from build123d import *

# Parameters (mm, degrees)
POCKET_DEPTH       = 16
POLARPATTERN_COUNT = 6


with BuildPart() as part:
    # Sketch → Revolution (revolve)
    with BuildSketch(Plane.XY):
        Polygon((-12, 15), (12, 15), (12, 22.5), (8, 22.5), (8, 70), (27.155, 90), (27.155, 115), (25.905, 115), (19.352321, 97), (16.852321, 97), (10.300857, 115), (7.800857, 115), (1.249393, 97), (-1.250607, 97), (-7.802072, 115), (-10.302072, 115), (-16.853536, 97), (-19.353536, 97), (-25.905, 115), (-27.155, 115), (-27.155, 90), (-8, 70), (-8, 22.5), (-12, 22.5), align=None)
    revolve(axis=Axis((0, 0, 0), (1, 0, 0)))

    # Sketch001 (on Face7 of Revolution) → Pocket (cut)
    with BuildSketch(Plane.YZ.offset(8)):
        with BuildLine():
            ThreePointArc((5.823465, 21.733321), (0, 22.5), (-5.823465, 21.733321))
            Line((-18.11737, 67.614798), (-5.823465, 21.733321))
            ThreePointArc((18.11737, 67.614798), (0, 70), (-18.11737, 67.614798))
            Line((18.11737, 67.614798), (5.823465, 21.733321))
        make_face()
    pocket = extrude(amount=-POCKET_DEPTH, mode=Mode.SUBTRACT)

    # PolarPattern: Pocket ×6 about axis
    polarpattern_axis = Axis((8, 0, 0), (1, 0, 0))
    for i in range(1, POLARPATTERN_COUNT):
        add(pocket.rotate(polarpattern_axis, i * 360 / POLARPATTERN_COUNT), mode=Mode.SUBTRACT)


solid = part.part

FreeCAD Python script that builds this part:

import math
import FreeCAD as App
import Part
import Sketcher
Q = App.Units.Quantity


def add_polygon(sketch, points):
    """Adds a closed chain of lines whose ends are joined by coincident constraints."""
    first, n = sketch.GeometryCount, len(points)
    for a, b in zip(points, points[1:] + points[:1]):
        sketch.addGeometry(Part.LineSegment(App.Vector(*a, 0), App.Vector(*b, 0)), False)
    for i in range(n):
        sketch.addConstraint(Sketcher.Constraint("Coincident", first + i, 2, first + (i + 1) % n, 1))

doc = App.newDocument("Part")
params = doc.addObject("Spreadsheet::Sheet", "Params")
for row, (alias, value) in enumerate([
    ("sketch1_width", "24 mm"),
    ("sketch1_width2", "4 mm"),
    ("sketch1_height", "25 mm"),
    ("sketch1_width3", "2.5 mm"),
    ("sketch1_height2", "7.5 mm"),
    ("revolution_angle", "360 deg"),
    ("sketch2_radius", "70.000001 mm"),
    ("sketch2_length", "47.5 mm"),
    ("pocket1_length", "16 mm"),
], start=1):
    params.set(f"A{row}", alias)
    params.set(f"B{row}", "=" + value)
    params.setAlias(f"B{row}", alias)

body = doc.addObject("PartDesign::Body", "Body")

# Sketch on XY plane
sketch1 = body.newObject("Sketcher::SketchObject", "Sketch")
sketch1.AttachmentSupport = (doc.getObject("XY_Plane"), [""])
sketch1.MapMode = "FlatFace"
add_polygon(sketch1, [(-12, 15), (12, 15), (12, 22.5), (8, 22.5), (8, 70), (27.2, 90), (27.2, 115), (25.9, 115), (19.4, 97), (16.9, 97), (10.3, 115), (7.8, 115), (1.2, 97), (-1.3, 97), (-7.8, 115), (-10.3, 115), (-16.9, 97), (-19.4, 97), (-25.9, 115), (-27.2, 115), (-27.2, 90), (-8, 70), (-8, 22.5), (-12, 22.5)])  # lines 0-23
sketch1.addConstraint([
    Sketcher.Constraint("Horizontal", 0),
    Sketcher.Constraint("Vertical", 1),
    Sketcher.Constraint("Horizontal", 2),
    Sketcher.Constraint("Vertical", 3),
    Sketcher.Constraint("Vertical", 5),
    Sketcher.Constraint("Horizontal", 6),
    Sketcher.Constraint("Horizontal", 8),
    Sketcher.Constraint("Horizontal", 10),
    Sketcher.Constraint("Horizontal", 12),
    Sketcher.Constraint("Horizontal", 14),
    Sketcher.Constraint("Horizontal", 16),
    Sketcher.Constraint("Horizontal", 18),
    Sketcher.Constraint("Vertical", 19),
    Sketcher.Constraint("Vertical", 21),
    Sketcher.Constraint("Horizontal", 22),
    Sketcher.Constraint("Vertical", 23),
    Sketcher.Constraint("Symmetric", 6, 2, 17, 2, -2),
    Sketcher.Constraint("Symmetric", 4, 2, 19, 2, -2),
    Sketcher.Constraint("Symmetric", 3, 2, 20, 2, -2),
    Sketcher.Constraint("Symmetric", 1, 2, 22, 2, -2),
    Sketcher.Constraint("Parallel", 9, 13),
    Sketcher.Constraint("Parallel", 11, 15),
    Sketcher.Constraint("Parallel", 13, 17),
    Sketcher.Constraint("Horizontal", 6, 2, 9, 2),
    Sketcher.Constraint("Horizontal", 8, 2, 11, 2),
    Sketcher.Constraint("Horizontal", 10, 2, 13, 2),
    Sketcher.Constraint("Horizontal", 12, 2, 15, 2),
    Sketcher.Constraint("Equal", 8, 10),
    Sketcher.Constraint("Equal", 10, 12),
    Sketcher.Constraint("Equal", 12, 14),
    Sketcher.Constraint("Equal", 14, 16),
    Sketcher.Constraint("Equal", 9, 11),
    Sketcher.Constraint("DistanceX", 0, 1, 0, 2, 24.0),
    Sketcher.Constraint("DistanceX", 2, 2, 2, 1, 4.0),
    Sketcher.Constraint("DistanceY", 5, 1, 5, 2, 25.0),
    Sketcher.Constraint("Angle", 9, Q("109.999999 deg")),
    Sketcher.Constraint("DistanceX", 8, 2, 8, 1, 2.5),
    Sketcher.Constraint("DistanceY", 1, 1, 1, 2, 7.5),
    Sketcher.Constraint("DistanceY", 3, 1, 3, 2, 47.5),
    Sketcher.Constraint("DistanceY", -1, 1, 0, 2, 15.0),
    Sketcher.Constraint("DistanceY", -1, 1, 4, 2, 90.0),
    Sketcher.Constraint("DistanceY", -1, 1, 7, 2, 97.0),
    Sketcher.Constraint("DistanceX", 6, 2, 6, 1, 1.25),
    Sketcher.Constraint("DistanceX", -1, 1, 4, 2, 27.155),
])
sketch1.setExpression("Constraints[56]", "Params.sketch1_width")
sketch1.setExpression("Constraints[57]", "Params.sketch1_width2")
sketch1.setExpression("Constraints[58]", "Params.sketch1_height")
sketch1.setExpression("Constraints[60]", "Params.sketch1_width3")
sketch1.setExpression("Constraints[61]", "Params.sketch1_height2")
revolution = body.newObject("PartDesign::Revolution", "Revolution")
revolution.Profile = sketch1
revolution.ReferenceAxis = (sketch1, ["H_Axis"])
revolution.setExpression("Angle", "Params.revolution_angle")

# Sketch on YZ plane
sketch2 = body.newObject("Sketcher::SketchObject", "Sketch001")
sketch2.AttachmentSupport = (doc.getObject("YZ_Plane"), [""])
sketch2.MapMode = "FlatFace"
sketch2.AttachmentOffset = App.Placement(App.Vector(0, 0, 8), App.Rotation())
sketch2.addGeometry([
    Part.ArcOfCircle(Part.Circle(App.Vector(0, 0, 0), App.Vector(0, 0, 1), 22), math.radians(75), math.radians(105)),
    Part.LineSegment(App.Vector(6, 22, 0), App.Vector(18, 68, 0)),
    Part.ArcOfCircle(Part.Circle(App.Vector(0, 0, 0), App.Vector(0, 0, 1), 70), math.radians(75), math.radians(105)),
    Part.LineSegment(App.Vector(-18, 68, 0), App.Vector(-6, 22, 0)),
], False)
sketch2.addConstraint([
    Sketcher.Constraint("Coincident", 0, 1, 1, 1),
    Sketcher.Constraint("Coincident", 1, 2, 2, 1),
    Sketcher.Constraint("Coincident", 2, 2, 3, 1),
    Sketcher.Constraint("Coincident", 3, 2, 0, 2),
    Sketcher.Constraint("Coincident", 0, 3, -1, 1),
    Sketcher.Constraint("Coincident", 2, 3, -1, 1),
    Sketcher.Constraint("Horizontal", 1, 2, 2, 2),
    Sketcher.Constraint("Horizontal", 0, 1, 3, 2),
    Sketcher.Constraint("Radius", 2, 70.000001),
    Sketcher.Constraint("Angle", 1, Q("75 deg")),
    Sketcher.Constraint("Distance", 1, 47.5),
    Sketcher.Constraint("DistanceY", -1, 1, 2, 2, 67.614798),
])
sketch2.setExpression("Constraints[8]", "Params.sketch2_radius")
sketch2.setExpression("Constraints[10]", "Params.sketch2_length")
pocket1 = body.newObject("PartDesign::Pocket", "Pocket")
pocket1.Profile = sketch2
pocket1.setExpression("Length", "Params.pocket1_length")
doc.recompute()

polarpattern = body.newObject("PartDesign::PolarPattern", "PolarPattern")
polarpattern.Originals = [pocket1]
polarpattern.Axis = (doc.getObject("X_Axis"), [""])
polarpattern.Angle = 360
polarpattern.Occurrences = 6
body.Tip = polarpattern

doc.recompute()
